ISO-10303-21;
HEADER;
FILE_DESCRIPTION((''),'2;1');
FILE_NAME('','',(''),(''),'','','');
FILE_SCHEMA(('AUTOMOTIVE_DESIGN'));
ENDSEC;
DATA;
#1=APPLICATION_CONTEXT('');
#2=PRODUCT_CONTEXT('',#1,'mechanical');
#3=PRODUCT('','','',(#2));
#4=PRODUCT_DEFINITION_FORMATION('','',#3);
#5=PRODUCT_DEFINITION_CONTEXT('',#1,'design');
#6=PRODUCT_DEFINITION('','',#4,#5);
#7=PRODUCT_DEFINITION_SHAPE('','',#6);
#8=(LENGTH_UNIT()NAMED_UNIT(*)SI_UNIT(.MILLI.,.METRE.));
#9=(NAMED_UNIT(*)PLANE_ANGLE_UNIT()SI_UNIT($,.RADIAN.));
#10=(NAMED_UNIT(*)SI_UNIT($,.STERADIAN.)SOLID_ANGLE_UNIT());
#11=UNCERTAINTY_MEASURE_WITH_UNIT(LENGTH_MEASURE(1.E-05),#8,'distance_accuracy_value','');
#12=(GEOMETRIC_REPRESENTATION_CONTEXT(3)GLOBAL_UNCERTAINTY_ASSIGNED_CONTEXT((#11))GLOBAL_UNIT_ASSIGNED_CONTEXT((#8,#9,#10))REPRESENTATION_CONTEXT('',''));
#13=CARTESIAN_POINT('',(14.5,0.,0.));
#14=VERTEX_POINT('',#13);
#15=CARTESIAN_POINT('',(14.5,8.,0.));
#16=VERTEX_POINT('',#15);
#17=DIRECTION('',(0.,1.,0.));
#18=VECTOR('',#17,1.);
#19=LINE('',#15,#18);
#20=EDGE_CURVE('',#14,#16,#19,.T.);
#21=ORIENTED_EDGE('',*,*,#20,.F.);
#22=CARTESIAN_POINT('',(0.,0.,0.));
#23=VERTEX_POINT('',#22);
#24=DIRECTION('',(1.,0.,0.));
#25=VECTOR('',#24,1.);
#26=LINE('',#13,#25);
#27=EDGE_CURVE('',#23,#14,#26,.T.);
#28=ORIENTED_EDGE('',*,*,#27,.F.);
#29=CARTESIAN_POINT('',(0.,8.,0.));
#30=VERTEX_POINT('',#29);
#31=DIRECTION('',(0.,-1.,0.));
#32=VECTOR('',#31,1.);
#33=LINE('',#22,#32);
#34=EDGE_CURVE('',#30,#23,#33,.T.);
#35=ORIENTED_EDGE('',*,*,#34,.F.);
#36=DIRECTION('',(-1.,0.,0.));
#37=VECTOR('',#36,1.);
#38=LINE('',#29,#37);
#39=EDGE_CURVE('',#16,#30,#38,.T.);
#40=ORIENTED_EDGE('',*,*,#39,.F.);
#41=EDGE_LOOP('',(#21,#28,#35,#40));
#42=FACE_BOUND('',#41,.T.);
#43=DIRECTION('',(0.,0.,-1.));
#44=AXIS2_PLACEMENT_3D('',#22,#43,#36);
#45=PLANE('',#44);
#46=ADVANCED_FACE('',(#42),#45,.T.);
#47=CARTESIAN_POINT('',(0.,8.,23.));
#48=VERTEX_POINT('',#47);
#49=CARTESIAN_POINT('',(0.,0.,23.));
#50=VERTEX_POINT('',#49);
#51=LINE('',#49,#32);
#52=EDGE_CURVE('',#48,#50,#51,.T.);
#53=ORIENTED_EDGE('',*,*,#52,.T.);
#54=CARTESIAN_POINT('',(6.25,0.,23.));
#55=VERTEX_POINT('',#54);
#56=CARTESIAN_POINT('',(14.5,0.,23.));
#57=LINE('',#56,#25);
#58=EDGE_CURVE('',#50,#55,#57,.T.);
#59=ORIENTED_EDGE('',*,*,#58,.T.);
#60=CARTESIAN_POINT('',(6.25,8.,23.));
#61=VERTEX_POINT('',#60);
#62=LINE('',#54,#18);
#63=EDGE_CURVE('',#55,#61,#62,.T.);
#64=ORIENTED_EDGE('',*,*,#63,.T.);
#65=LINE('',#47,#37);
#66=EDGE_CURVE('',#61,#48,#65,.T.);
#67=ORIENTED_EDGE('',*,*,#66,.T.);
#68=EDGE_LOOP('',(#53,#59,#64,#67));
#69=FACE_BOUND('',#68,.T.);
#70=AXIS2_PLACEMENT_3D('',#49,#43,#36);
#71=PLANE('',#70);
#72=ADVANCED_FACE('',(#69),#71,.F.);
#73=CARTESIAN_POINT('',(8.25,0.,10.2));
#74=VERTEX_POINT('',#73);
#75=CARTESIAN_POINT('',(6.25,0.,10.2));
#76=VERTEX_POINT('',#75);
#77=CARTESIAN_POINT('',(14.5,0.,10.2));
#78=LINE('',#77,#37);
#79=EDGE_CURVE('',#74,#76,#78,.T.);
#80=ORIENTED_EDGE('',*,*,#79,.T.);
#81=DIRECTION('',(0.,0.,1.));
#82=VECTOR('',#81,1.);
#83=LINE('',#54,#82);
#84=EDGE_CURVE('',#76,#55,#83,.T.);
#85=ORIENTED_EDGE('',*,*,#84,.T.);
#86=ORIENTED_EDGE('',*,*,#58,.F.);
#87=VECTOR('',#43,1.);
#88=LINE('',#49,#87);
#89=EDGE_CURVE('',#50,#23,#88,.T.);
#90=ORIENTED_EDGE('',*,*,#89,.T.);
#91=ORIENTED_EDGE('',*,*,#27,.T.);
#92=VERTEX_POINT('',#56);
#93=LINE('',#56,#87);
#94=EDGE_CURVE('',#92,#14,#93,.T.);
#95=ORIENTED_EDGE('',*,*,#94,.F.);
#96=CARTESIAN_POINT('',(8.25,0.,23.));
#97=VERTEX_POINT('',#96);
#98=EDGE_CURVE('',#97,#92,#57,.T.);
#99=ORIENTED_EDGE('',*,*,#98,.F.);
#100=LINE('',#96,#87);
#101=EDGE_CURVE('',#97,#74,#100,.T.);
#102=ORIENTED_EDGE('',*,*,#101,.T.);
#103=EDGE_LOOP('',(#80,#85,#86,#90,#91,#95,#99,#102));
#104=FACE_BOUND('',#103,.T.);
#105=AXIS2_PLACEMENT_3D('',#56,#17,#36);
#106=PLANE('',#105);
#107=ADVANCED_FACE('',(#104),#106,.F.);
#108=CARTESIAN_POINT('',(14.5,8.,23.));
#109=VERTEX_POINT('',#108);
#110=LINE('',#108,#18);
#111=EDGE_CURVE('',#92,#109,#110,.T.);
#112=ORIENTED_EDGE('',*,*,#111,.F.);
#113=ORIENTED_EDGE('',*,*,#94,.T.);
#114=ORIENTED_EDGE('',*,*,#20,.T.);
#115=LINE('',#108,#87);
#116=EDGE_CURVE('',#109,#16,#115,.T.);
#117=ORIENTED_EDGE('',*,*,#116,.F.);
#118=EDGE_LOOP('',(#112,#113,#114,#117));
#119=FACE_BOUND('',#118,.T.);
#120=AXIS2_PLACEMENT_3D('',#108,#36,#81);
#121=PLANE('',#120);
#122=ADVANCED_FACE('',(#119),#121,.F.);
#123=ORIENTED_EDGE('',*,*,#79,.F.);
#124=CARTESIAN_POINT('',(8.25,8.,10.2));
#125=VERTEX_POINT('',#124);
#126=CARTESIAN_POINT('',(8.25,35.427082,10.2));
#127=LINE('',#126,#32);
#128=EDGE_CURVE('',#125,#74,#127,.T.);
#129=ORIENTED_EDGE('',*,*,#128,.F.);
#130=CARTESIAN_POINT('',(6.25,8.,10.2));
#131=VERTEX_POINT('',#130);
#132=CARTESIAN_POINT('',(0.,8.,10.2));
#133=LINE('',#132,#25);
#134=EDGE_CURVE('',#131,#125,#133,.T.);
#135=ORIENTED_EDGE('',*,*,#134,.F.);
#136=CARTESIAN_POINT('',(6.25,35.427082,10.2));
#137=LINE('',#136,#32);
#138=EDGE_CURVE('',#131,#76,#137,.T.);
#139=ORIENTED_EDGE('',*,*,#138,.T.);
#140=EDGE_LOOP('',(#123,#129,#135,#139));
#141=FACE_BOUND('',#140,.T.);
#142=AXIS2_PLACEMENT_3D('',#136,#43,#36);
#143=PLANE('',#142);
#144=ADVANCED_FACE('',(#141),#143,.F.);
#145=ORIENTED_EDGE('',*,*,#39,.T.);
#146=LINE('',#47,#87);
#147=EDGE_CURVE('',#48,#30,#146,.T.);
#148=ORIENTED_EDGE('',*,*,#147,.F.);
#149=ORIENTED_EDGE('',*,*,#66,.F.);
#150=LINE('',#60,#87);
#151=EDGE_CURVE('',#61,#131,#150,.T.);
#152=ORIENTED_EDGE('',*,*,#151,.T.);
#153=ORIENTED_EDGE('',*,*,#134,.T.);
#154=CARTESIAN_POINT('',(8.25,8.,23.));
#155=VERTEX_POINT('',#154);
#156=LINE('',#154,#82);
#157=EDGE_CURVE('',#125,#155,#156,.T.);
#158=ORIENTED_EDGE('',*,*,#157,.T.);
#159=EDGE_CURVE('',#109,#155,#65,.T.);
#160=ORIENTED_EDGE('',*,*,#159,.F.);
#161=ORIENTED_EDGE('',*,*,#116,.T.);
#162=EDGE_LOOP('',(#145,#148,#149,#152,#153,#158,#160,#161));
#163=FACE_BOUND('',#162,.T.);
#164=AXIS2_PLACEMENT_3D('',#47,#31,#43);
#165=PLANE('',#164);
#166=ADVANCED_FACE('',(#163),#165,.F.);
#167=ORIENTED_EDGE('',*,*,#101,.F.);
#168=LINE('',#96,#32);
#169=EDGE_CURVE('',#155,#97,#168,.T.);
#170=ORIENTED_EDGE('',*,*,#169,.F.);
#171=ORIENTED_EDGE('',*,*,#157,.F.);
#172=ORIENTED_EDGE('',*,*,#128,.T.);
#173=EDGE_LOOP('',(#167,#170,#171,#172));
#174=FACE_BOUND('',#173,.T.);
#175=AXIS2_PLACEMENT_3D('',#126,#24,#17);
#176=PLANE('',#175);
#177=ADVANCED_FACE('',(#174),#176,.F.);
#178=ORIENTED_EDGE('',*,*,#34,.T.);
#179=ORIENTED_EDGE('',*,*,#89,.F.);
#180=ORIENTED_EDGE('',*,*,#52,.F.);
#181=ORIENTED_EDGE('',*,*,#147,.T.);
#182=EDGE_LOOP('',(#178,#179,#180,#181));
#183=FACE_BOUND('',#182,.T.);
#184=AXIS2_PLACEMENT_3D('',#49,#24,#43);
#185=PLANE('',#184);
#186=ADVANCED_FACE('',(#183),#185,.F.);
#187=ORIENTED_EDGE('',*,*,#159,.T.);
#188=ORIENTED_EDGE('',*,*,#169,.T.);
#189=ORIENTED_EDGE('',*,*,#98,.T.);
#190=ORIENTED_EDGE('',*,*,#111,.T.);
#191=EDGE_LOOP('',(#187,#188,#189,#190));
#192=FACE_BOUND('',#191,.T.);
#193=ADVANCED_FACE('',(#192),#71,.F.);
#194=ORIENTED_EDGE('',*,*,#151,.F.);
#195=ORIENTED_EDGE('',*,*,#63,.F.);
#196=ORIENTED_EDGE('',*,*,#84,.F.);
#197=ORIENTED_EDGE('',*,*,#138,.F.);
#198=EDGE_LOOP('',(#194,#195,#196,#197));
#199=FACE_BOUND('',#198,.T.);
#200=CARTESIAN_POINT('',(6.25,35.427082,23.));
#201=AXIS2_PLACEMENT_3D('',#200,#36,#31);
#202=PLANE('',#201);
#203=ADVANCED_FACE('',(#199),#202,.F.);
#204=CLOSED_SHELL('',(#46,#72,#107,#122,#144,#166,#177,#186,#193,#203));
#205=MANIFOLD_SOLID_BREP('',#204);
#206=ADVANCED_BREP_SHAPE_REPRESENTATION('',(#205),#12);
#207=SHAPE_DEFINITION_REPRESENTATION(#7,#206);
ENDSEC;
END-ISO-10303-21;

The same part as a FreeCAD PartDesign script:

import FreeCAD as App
import Part
import Sketcher

V = App.Vector
Q = App.Units.Quantity


def add_polygon(sketch, points):
    """Adds a closed chain of lines whose ends are joined by coincident constraints."""
    first, n = sketch.GeometryCount, len(points)
    for a, b in zip(points, points[1:] + points[:1]):
        sketch.addGeometry(Part.LineSegment(App.Vector(*a, 0), App.Vector(*b, 0)), False)
    for i in range(n):
        sketch.addConstraint(Sketcher.Constraint("Coincident", first + i, 2, first + (i + 1) % n, 1))

doc = App.newDocument("Part")
body = doc.addObject("PartDesign::Body", "Body")

# Sketch on XY plane
sketch1 = body.newObject("Sketcher::SketchObject", "Sketch")
sketch1.AttachmentSupport = (doc.getObject("XY_Plane"), [""])
sketch1.MapMode = "FlatFace"
add_polygon(sketch1, [(0, 8), (0, 0), (14, 0), (14, 8)])  # lines 0-3
sketch1.addConstraint(Sketcher.Constraint("Vertical", 0))
sketch1.addConstraint(Sketcher.Constraint("Horizontal", 1))
sketch1.addConstraint(Sketcher.Constraint("Vertical", 2))
sketch1.addConstraint(Sketcher.Constraint("Horizontal", 3))
sketch1.addConstraint(Sketcher.Constraint("Coincident", 0, 2, -1, 1))
sketch1.addConstraint(Sketcher.Constraint("DistanceY", 0, 2, 0, 1, Q("8 mm")))
sketch1.addConstraint(Sketcher.Constraint("DistanceX", 1, 1, 1, 2, Q("14.5 mm")))
pad1 = body.newObject("PartDesign::Pad", "Pad")
pad1.Profile = sketch1
pad1.Length = 23

# Sketch on XZ plane
sketch2 = body.newObject("Sketcher::SketchObject", "Sketch001")
sketch2.AttachmentSupport = (doc.getObject("XZ_Plane"), [""])
sketch2.MapMode = "FlatFace"
add_polygon(sketch2, [(6.2, 23), (6.2, 10.2), (8.2, 10.2), (8.2, 23)])  # lines 0-3
sketch2.addConstraint(Sketcher.Constraint("Vertical", 0))
sketch2.addConstraint(Sketcher.Constraint("Horizontal", 1))
sketch2.addConstraint(Sketcher.Constraint("Vertical", 2))
sketch2.addConstraint(Sketcher.Constraint("Horizontal", 3))
sketch2.addConstraint(Sketcher.Constraint("DistanceX", 1, 1, 1, 2, Q("2 mm")))
sketch2.addConstraint(Sketcher.Constraint("DistanceY", 0, 2, 0, 1, Q("12.8 mm")))
sketch2.addConstraint(Sketcher.Constraint("DistanceY", -1, 1, 2, 2, Q("23 mm")))
sketch2.addConstraint(Sketcher.Constraint("DistanceX", -1, 1, 0, 2, Q("6.25 mm")))
pocket1 = body.newObject("PartDesign::Pocket", "Pocket")
pocket1.Profile = sketch2
pocket1.Type = "ThroughAll"
pocket1.Midplane = True

doc.recompute()
